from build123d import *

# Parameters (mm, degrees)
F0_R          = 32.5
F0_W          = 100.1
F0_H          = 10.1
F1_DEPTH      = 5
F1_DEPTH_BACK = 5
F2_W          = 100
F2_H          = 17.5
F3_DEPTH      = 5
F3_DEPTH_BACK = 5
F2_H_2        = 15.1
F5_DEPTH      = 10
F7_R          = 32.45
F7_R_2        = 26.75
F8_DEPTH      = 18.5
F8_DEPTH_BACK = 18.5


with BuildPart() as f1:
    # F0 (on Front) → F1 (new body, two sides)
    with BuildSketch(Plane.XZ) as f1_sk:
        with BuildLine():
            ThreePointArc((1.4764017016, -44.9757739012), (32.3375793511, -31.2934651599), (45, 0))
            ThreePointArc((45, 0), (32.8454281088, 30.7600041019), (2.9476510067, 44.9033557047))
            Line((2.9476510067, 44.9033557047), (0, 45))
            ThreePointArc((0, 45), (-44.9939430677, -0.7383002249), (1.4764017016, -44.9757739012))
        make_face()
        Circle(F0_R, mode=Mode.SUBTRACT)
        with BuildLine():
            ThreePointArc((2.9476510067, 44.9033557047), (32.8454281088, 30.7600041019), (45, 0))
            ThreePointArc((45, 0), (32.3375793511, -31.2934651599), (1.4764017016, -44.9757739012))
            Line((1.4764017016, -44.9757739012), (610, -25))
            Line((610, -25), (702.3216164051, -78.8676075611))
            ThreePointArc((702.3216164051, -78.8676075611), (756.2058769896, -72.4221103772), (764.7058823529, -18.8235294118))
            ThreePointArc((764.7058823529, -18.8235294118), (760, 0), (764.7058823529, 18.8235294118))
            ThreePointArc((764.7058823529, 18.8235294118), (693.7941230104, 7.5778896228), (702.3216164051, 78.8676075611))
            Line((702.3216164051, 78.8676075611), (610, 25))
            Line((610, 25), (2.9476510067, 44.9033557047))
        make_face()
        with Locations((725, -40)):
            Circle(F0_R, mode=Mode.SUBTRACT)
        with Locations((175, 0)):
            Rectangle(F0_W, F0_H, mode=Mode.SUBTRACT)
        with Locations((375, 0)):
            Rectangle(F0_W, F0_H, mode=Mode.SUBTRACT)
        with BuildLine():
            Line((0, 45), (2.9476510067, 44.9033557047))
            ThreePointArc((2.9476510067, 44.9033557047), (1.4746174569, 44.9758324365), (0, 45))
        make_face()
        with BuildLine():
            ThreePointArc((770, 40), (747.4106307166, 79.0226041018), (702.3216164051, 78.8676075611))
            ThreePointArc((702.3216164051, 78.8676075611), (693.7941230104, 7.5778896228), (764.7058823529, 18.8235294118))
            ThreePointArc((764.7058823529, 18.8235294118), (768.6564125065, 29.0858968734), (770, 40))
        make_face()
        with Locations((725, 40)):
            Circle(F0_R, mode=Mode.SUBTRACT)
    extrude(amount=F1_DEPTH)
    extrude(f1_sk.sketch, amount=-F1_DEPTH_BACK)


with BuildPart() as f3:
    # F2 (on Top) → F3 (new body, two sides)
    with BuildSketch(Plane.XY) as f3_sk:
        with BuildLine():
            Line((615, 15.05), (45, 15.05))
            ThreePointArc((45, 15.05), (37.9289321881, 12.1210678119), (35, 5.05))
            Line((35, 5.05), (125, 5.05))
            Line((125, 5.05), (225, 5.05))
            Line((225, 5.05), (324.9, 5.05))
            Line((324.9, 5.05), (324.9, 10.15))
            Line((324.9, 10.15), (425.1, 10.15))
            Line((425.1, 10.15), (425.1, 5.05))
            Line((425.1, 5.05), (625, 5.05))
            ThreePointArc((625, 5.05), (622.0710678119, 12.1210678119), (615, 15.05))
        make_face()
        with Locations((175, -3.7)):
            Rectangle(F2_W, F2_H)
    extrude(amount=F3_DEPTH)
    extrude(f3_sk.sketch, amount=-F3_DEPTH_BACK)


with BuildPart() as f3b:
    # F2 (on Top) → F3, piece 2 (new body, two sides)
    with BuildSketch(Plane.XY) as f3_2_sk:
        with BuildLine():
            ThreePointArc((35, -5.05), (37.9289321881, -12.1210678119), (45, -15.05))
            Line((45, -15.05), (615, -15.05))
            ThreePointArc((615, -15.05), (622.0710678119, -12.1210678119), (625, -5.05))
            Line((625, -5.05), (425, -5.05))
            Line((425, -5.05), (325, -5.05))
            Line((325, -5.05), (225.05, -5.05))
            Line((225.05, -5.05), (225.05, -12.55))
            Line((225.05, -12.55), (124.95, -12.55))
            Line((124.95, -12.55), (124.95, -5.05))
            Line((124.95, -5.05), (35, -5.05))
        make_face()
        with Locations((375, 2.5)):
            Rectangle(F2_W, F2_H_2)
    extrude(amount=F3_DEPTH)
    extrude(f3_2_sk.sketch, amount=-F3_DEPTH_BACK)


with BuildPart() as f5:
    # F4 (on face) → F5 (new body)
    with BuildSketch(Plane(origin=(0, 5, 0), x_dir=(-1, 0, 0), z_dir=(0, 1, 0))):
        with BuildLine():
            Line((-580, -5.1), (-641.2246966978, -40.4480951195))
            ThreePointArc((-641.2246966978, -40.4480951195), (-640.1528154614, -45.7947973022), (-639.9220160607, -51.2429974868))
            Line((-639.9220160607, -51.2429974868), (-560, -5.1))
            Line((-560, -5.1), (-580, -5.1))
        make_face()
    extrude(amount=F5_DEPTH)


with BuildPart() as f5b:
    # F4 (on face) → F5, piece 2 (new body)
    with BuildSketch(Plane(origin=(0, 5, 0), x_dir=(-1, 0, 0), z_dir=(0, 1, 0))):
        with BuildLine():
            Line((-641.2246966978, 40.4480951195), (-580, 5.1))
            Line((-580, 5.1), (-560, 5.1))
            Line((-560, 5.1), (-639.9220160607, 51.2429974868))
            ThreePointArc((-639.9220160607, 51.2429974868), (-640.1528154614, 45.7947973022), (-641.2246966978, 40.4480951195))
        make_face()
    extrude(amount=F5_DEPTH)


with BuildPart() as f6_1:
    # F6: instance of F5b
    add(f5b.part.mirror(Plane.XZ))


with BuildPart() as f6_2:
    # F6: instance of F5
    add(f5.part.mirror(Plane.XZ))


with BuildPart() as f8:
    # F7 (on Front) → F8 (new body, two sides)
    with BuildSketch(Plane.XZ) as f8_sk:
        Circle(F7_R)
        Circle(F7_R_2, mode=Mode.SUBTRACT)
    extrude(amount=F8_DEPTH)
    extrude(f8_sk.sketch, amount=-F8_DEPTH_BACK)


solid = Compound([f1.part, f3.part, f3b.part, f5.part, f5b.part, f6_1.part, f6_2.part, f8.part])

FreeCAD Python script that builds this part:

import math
import FreeCAD as App
import Part
import Sketcher

V = App.Vector
Q = App.Units.Quantity

doc = App.newDocument("Part")
body = doc.addObject("PartDesign::Body", "Body")

# Sketch on XZ plane
sketch1 = body.newObject("Sketcher::SketchObject", "Sketch")
sketch1.AttachmentSupport = (doc.getObject("XZ_Plane"), [""])
sketch1.MapMode = "FlatFace"
sketch1.addGeometry(Part.ArcOfCircle(Part.Circle(V(0, 0, 0), V(0, 0, 1), 45), math.radians(90), math.radians(272)), False)
sketch1.addGeometry(Part.LineSegment(V(1.5, -45, 0), V(610, -25, 0)), False)
sketch1.addGeometry(Part.LineSegment(V(610, -25, 0), V(702.3, -78.9, 0)), False)
sketch1.addGeometry(Part.ArcOfCircle(Part.Circle(V(725, -40, 0), V(0, 0, 1), 45), math.radians(-120), math.radians(28)), False)
sketch1.addGeometry(Part.ArcOfCircle(Part.Circle(V(800, 0, 0), V(0, 0, 1), 40), math.radians(152), math.radians(208)), False)
sketch1.addGeometry(Part.ArcOfCircle(Part.Circle(V(725, 40, 0), V(0, 0, 1), 45), math.radians(-28), math.radians(120)), False)
sketch1.addGeometry(Part.LineSegment(V(702.3, 78.9, 0), V(610, 25, 0)), False)
sketch1.addGeometry(Part.LineSegment(V(610, 25, 0), V(2.9, 44.9, 0)), False)
sketch1.addGeometry(Part.ArcOfCircle(Part.Circle(V(0, 0, 0), V(0, 0, 1), 45), math.radians(86.24), math.radians(90)), False)
sketch1.addGeometry(Part.Circle(V(725, -40, 0), V(0, 0, 1), 32.5), False)
sketch1.addGeometry(Part.Circle(V(0, 0, 0), V(0, 0, 1), 32.5), False)
sketch1.addGeometry(Part.LineSegment(V(225.1, -5, 0), V(125, -5, 0)), False)
sketch1.addGeometry(Part.LineSegment(V(125, -5, 0), V(125, 5, 0)), False)
sketch1.addGeometry(Part.LineSegment(V(125, 5, 0), V(225.1, 5, 0)), False)
sketch1.addGeometry(Part.LineSegment(V(225.1, 5, 0), V(225.1, -5, 0)), False)
sketch1.addGeometry(Part.LineSegment(V(425.1, -5, 0), V(324.9, -5, 0)), False)
sketch1.addGeometry(Part.LineSegment(V(324.9, -5, 0), V(324.9, 5, 0)), False)
sketch1.addGeometry(Part.LineSegment(V(324.9, 5, 0), V(425.1, 5, 0)), False)
sketch1.addGeometry(Part.LineSegment(V(425.1, 5, 0), V(425.1, -5, 0)), False)
sketch1.addGeometry(Part.Circle(V(725, 40, 0), V(0, 0, 1), 32.5), False)
sketch1.addConstraint(Sketcher.Constraint("Tangent", 0, 2, 1, 1))
sketch1.addConstraint(Sketcher.Constraint("Coincident", 1, 2, 2, 1))
sketch1.addConstraint(Sketcher.Constraint("Tangent", 2, 2, 3, 1))
sketch1.addConstraint(Sketcher.Constraint("Tangent", 3, 2, 4, 2))
sketch1.addConstraint(Sketcher.Constraint("Tangent", 4, 1, 5, 1))
sketch1.addConstraint(Sketcher.Constraint("Tangent", 5, 2, 6, 1))
sketch1.addConstraint(Sketcher.Constraint("Coincident", 6, 2, 7, 1))
sketch1.addConstraint(Sketcher.Constraint("Coincident", 7, 2, 8, 1))
sketch1.addConstraint(Sketcher.Constraint("Tangent", 8, 2, 0, 1))
sketch1.addConstraint(Sketcher.Constraint("Coincident", 11, 2, 12, 1))
sketch1.addConstraint(Sketcher.Constraint("Coincident", 12, 2, 13, 1))
sketch1.addConstraint(Sketcher.Constraint("Coincident", 13, 2, 14, 1))
sketch1.addConstraint(Sketcher.Constraint("Coincident", 14, 2, 11, 1))
sketch1.addConstraint(Sketcher.Constraint("Coincident", 15, 2, 16, 1))
sketch1.addConstraint(Sketcher.Constraint("Coincident", 16, 2, 17, 1))
sketch1.addConstraint(Sketcher.Constraint("Coincident", 17, 2, 18, 1))
sketch1.addConstraint(Sketcher.Constraint("Coincident", 18, 2, 15, 1))
sketch1.addConstraint(Sketcher.Constraint("Horizontal", 11))
sketch1.addConstraint(Sketcher.Constraint("Vertical", 12))
sketch1.addConstraint(Sketcher.Constraint("Horizontal", 13))
sketch1.addConstraint(Sketcher.Constraint("Vertical", 14))
sketch1.addConstraint(Sketcher.Constraint("Horizontal", 15))
sketch1.addConstraint(Sketcher.Constraint("Vertical", 16))
sketch1.addConstraint(Sketcher.Constraint("Horizontal", 17))
sketch1.addConstraint(Sketcher.Constraint("Vertical", 18))
sketch1.addConstraint(Sketcher.Constraint("Coincident", 0, 3, -1, 1))
sketch1.addConstraint(Sketcher.Constraint("Coincident", 10, 3, -1, 1))
sketch1.addConstraint(Sketcher.Constraint("Coincident", 9, 3, 3, 3))
sketch1.addConstraint(Sketcher.Constraint("Coincident", 19, 3, 5, 3))
sketch1.addConstraint(Sketcher.Constraint("Equal", 0, 3))
sketch1.addConstraint(Sketcher.Constraint("Equal", 3, 5))
sketch1.addConstraint(Sketcher.Constraint("Equal", 5, 8))
sketch1.addConstraint(Sketcher.Constraint("Equal", 9, 10))
sketch1.addConstraint(Sketcher.Constraint("Equal", 10, 19))
sketch1.addConstraint(Sketcher.Constraint("Symmetric", 3, 3, 5, 3, -1))
sketch1.addConstraint(Sketcher.Constraint("Symmetric", 1, 2, 6, 2, -1))
sketch1.addConstraint(Sketcher.Constraint("PointOnObject", 8, 2, -2))
sketch1.addConstraint(Sketcher.Constraint("Horizontal", 14, 2, 15, 2))
sketch1.addConstraint(Sketcher.Constraint("Horizontal", 13, 2, 16, 2))
sketch1.addConstraint(Sketcher.Constraint("Equal", 13, 15))
sketch1.addConstraint(Sketcher.Constraint("Diameter", 9, 65.0))
sketch1.addConstraint(Sketcher.Constraint("Radius", 0, 45.0))
sketch1.addConstraint(Sketcher.Constraint("Radius", 4, 40.0))
sketch1.addConstraint(Sketcher.Constraint("DistanceX", 11, 2, 11, 1, 100.1))
sketch1.addConstraint(Sketcher.Constraint("DistanceY", 12, 1, 12, 2, 10.1))
sketch1.addConstraint(Sketcher.Constraint("DistanceX", -1, 1, 3, 3, 725.0))
sketch1.addConstraint(Sketcher.Constraint("DistanceY", 3, 3, -1, 1, 40.0))
sketch1.addConstraint(Sketcher.Constraint("DistanceX", -1, 1, 1, 2, 610.0))
sketch1.addConstraint(Sketcher.Constraint("DistanceY", 1, 2, -1, 1, 25.0))
sketch1.addConstraint(Sketcher.Constraint("DistanceX", 11, 2, 15, 2, 200.0))
sketch1.addConstraint(Sketcher.Constraint("DistanceX", -1, 1, 11, 2, 124.95))
sketch1.addConstraint(Sketcher.Constraint("DistanceY", 11, 2, -1, 1, 5.05))
sketch1.addConstraint(Sketcher.Constraint("DistanceX", -1, 1, 7, 2, 2.947651))
pad1 = body.newObject("PartDesign::Pad", "Pad")
pad1.Profile = sketch1
pad1.Type = "TwoLengths"
pad1.Length = 5
pad1.Length2 = 5
body2 = doc.addObject("PartDesign::Body", "Body001")

# Sketch on XY plane
sketch2 = body2.newObject("Sketcher::SketchObject", "Sketch001")
sketch2.AttachmentSupport = (doc.getObject("XY_Plane001"), [""])
sketch2.MapMode = "FlatFace"
sketch2.addGeometry(Part.LineSegment(V(615, 15, 0), V(45, 15, 0)), False)
sketch2.addGeometry(Part.ArcOfCircle(Part.Circle(V(45, 5, 0), V(0, 0, 1), 10), math.radians(90), math.radians(180)), False)
sketch2.addGeometry(Part.LineSegment(V(35, 5, 0), V(125, 5, 0)), False)
sketch2.addGeometry(Part.LineSegment(V(125, 5, 0), V(125, -12, 0)), False)
sketch2.addGeometry(Part.LineSegment(V(125, -12, 0), V(225, -12, 0)), False)
sketch2.addGeometry(Part.LineSegment(V(225, -12, 0), V(225, 5, 0)), False)
sketch2.addGeometry(Part.LineSegment(V(225, 5, 0), V(325, 5, 0)), False)
sketch2.addGeometry(Part.LineSegment(V(325, 5, 0), V(325, 10, 0)), False)
sketch2.addGeometry(Part.LineSegment(V(325, 10, 0), V(425, 10, 0)), False)
sketch2.addGeometry(Part.LineSegment(V(425, 10, 0), V(425, 5, 0)), False)
sketch2.addGeometry(Part.LineSegment(V(425, 5, 0), V(625, 5, 0)), False)
sketch2.addGeometry(Part.ArcOfCircle(Part.Circle(V(615, 5, 0), V(0, 0, 1), 10), math.radians(0), math.radians(90)), False)
sketch2.addConstraint(Sketcher.Constraint("Tangent", 0, 2, 1, 1))
sketch2.addConstraint(Sketcher.Constraint("Coincident", 1, 2, 2, 1))
sketch2.addConstraint(Sketcher.Constraint("Coincident", 2, 2, 3, 1))
sketch2.addConstraint(Sketcher.Constraint("Coincident", 3, 2, 4, 1))
sketch2.addConstraint(Sketcher.Constraint("Coincident", 4, 2, 5, 1))
sketch2.addConstraint(Sketcher.Constraint("Coincident", 5, 2, 6, 1))
sketch2.addConstraint(Sketcher.Constraint("Coincident", 6, 2, 7, 1))
sketch2.addConstraint(Sketcher.Constraint("Coincident", 7, 2, 8, 1))
sketch2.addConstraint(Sketcher.Constraint("Coincident", 8, 2, 9, 1))
sketch2.addConstraint(Sketcher.Constraint("Coincident", 9, 2, 10, 1))
sketch2.addConstraint(Sketcher.Constraint("Coincident", 10, 2, 11, 1))
sketch2.addConstraint(Sketcher.Constraint("Tangent", 11, 2, 0, 1))
sketch2.addConstraint(Sketcher.Constraint("Horizontal", 0))
sketch2.addConstraint(Sketcher.Constraint("Horizontal", 2))
sketch2.addConstraint(Sketcher.Constraint("Vertical", 3))
sketch2.addConstraint(Sketcher.Constraint("Horizontal", 4))
sketch2.addConstraint(Sketcher.Constraint("Vertical", 5))
sketch2.addConstraint(Sketcher.Constraint("Horizontal", 6))
sketch2.addConstraint(Sketcher.Constraint("Vertical", 7))
sketch2.addConstraint(Sketcher.Constraint("Horizontal", 8))
sketch2.addConstraint(Sketcher.Constraint("Vertical", 9))
sketch2.addConstraint(Sketcher.Constraint("Horizontal", 10))
sketch2.addConstraint(Sketcher.Constraint("Equal", 1, 11))
sketch2.addConstraint(Sketcher.Constraint("Horizontal", 11, 3, 1, 2))
sketch2.addConstraint(Sketcher.Constraint("Horizontal", 2, 2, 5, 2))
sketch2.addConstraint(Sketcher.Constraint("Horizontal", 6, 2, 9, 2))
sketch2.addConstraint(Sketcher.Constraint("Radius", 1, 10.0))
sketch2.addConstraint(Sketcher.Constraint("DistanceX", 0, 2, 0, 1, 570.0))
sketch2.addConstraint(Sketcher.Constraint("DistanceX", 2, 1, 2, 2, 90.0))
sketch2.addConstraint(Sketcher.Constraint("DistanceX", 4, 1, 4, 2, 100.0))
sketch2.addConstraint(Sketcher.Constraint("DistanceX", 6, 1, 6, 2, 99.9))
sketch2.addConstraint(Sketcher.Constraint("DistanceX", 8, 1, 8, 2, 100.2))
sketch2.addConstraint(Sketcher.Constraint("DistanceY", 3, 2, 3, 1, 17.5))
sketch2.addConstraint(Sketcher.Constraint("DistanceY", 7, 1, 7, 2, 5.1))
sketch2.addConstraint(Sketcher.Constraint("DistanceX", -1, 1, 1, 3, 45.0))
sketch2.addConstraint(Sketcher.Constraint("DistanceY", -1, 1, 1, 3, 5.05))
pad2 = body2.newObject("PartDesign::Pad", "Pad001")
pad2.Profile = sketch2
pad2.Type = "TwoLengths"
pad2.Length = 5
pad2.Length2 = 5
body3 = doc.addObject("PartDesign::Body", "Body002")

# Sketch on XY plane
sketch3 = body3.newObject("Sketcher::SketchObject", "Sketch002")
sketch3.AttachmentSupport = (doc.getObject("XY_Plane002"), [""])
sketch3.MapMode = "FlatFace"
sketch3.addGeometry(Part.ArcOfCircle(Part.Circle(V(45, -5, 0), V(0, 0, 1), 10), math.radians(180), math.radians(270)), False)
sketch3.addGeometry(Part.LineSegment(V(45, -15, 0), V(615, -15, 0)), False)
sketch3.addGeometry(Part.ArcOfCircle(Part.Circle(V(615, -5, 0), V(0, 0, 1), 10), math.radians(-90), math.radians(0)), False)
sketch3.addGeometry(Part.LineSegment(V(625, -5, 0), V(425, -5, 0)), False)
sketch3.addGeometry(Part.LineSegment(V(425, -5, 0), V(425, 10, 0)), False)
sketch3.addGeometry(Part.LineSegment(V(425, 10, 0), V(325, 10, 0)), False)
sketch3.addGeometry(Part.LineSegment(V(325, 10, 0), V(325, -5, 0)), False)
sketch3.addGeometry(Part.LineSegment(V(325, -5, 0), V(225, -5, 0)), False)
sketch3.addGeometry(Part.LineSegment(V(225, -5, 0), V(225, -13, 0)), False)
sketch3.addGeometry(Part.LineSegment(V(225, -13, 0), V(125, -13, 0)), False)
sketch3.addGeometry(Part.LineSegment(V(125, -13, 0), V(125, -5, 0)), False)
sketch3.addGeometry(Part.LineSegment(V(125, -5, 0), V(35, -5, 0)), False)
sketch3.addConstraint(Sketcher.Constraint("Tangent", 0, 2, 1, 1))
sketch3.addConstraint(Sketcher.Constraint("Tangent", 1, 2, 2, 1))
sketch3.addConstraint(Sketcher.Constraint("Coincident", 2, 2, 3, 1))
sketch3.addConstraint(Sketcher.Constraint("Coincident", 3, 2, 4, 1))
sketch3.addConstraint(Sketcher.Constraint("Coincident", 4, 2, 5, 1))
sketch3.addConstraint(Sketcher.Constraint("Coincident", 5, 2, 6, 1))
sketch3.addConstraint(Sketcher.Constraint("Coincident", 6, 2, 7, 1))
sketch3.addConstraint(Sketcher.Constraint("Coincident", 7, 2, 8, 1))
sketch3.addConstraint(Sketcher.Constraint("Coincident", 8, 2, 9, 1))
sketch3.addConstraint(Sketcher.Constraint("Coincident", 9, 2, 10, 1))
sketch3.addConstraint(Sketcher.Constraint("Coincident", 10, 2, 11, 1))
sketch3.addConstraint(Sketcher.Constraint("Coincident", 11, 2, 0, 1))
sketch3.addConstraint(Sketcher.Constraint("Horizontal", 1))
sketch3.addConstraint(Sketcher.Constraint("Horizontal", 3))
sketch3.addConstraint(Sketcher.Constraint("Vertical", 4))
sketch3.addConstraint(Sketcher.Constraint("Horizontal", 5))
sketch3.addConstraint(Sketcher.Constraint("Vertical", 6))
sketch3.addConstraint(Sketcher.Constraint("Horizontal", 7))
sketch3.addConstraint(Sketcher.Constraint("Vertical", 8))
sketch3.addConstraint(Sketcher.Constraint("Horizontal", 9))
sketch3.addConstraint(Sketcher.Constraint("Vertical", 10))
sketch3.addConstraint(Sketcher.Constraint("Horizontal", 11))
sketch3.addConstraint(Sketcher.Constraint("Equal", 0, 2))
sketch3.addConstraint(Sketcher.Constraint("Horizontal", 0, 3, 2, 2))
sketch3.addConstraint(Sketcher.Constraint("Horizontal", 3, 2, 6, 2))
sketch3.addConstraint(Sketcher.Constraint("Horizontal", 7, 2, 10, 2))
sketch3.addConstraint(Sketcher.Constraint("Radius", 0, 10.0))
sketch3.addConstraint(Sketcher.Constraint("DistanceX", 1, 1, 1, 2, 570.0))
sketch3.addConstraint(Sketcher.Constraint("DistanceX", 3, 2, 3, 1, 200.0))
sketch3.addConstraint(Sketcher.Constraint("DistanceX", 5, 2, 5, 1, 100.0))
sketch3.addConstraint(Sketcher.Constraint("DistanceX", 9, 2, 9, 1, 100.1))
sketch3.addConstraint(Sketcher.Constraint("DistanceY", 4, 1, 4, 2, 15.1))
sketch3.addConstraint(Sketcher.Constraint("DistanceY", 8, 2, 8, 1, 7.5))
sketch3.addConstraint(Sketcher.Constraint("DistanceX", -1, 1, 0, 3, 45.0))
sketch3.addConstraint(Sketcher.Constraint("DistanceX", 7, 2, 7, 1, 99.95))
sketch3.addConstraint(Sketcher.Constraint("DistanceY", 0, 3, -1, 1, 5.05))
pad3 = body3.newObject("PartDesign::Pad", "Pad002")
pad3.Profile = sketch3
pad3.Type = "TwoLengths"
pad3.Length = 5
pad3.Length2 = 5
body4 = doc.addObject("PartDesign::Body", "Body003")

# Sketch on XZ plane
sketch4 = body4.newObject("Sketcher::SketchObject", "Sketch003")
sketch4.AttachmentSupport = (doc.getObject("XZ_Plane003"), [""])
sketch4.MapMode = "FlatFace"
sketch4.AttachmentOffset = App.Placement(V(0, 0, -5), App.Rotation())
sketch4.addGeometry(Part.LineSegment(V(580, -5, 0), V(641, -40, 0)), False)
sketch4.addGeometry(Part.ArcOfCircle(Part.Circle(V(675, -50, 0), V(0, 0, 1), 35), math.radians(164.21), math.radians(182.03)), False)
sketch4.addGeometry(Part.LineSegment(V(640, -51, 0), V(560, -5, 0)), False)
sketch4.addGeometry(Part.LineSegment(V(560, -5, 0), V(580, -5, 0)), False)
sketch4.addConstraint(Sketcher.Constraint("Coincident", 0, 2, 1, 1))
sketch4.addConstraint(Sketcher.Constraint("Coincident", 1, 2, 2, 1))
sketch4.addConstraint(Sketcher.Constraint("Coincident", 2, 2, 3, 1))
sketch4.addConstraint(Sketcher.Constraint("Coincident", 3, 2, 0, 1))
sketch4.addConstraint(Sketcher.Constraint("Horizontal", 3))
sketch4.addConstraint(Sketcher.Constraint("Parallel", 0, 2))
sketch4.addConstraint(Sketcher.Constraint("Radius", 1, 35.1))
sketch4.addConstraint(Sketcher.Constraint("DistanceX", 3, 1, 3, 2, 20.0))
sketch4.addConstraint(Sketcher.Constraint("Angle", 0, Q("-30 deg")))
sketch4.addConstraint(Sketcher.Constraint("DistanceX", -1, 1, 1, 3, 675.0))
sketch4.addConstraint(Sketcher.Constraint("DistanceY", 1, 3, -1, 1, 50.0))
sketch4.addConstraint(Sketcher.Constraint("DistanceX", -1, 1, 2, 2, 560.0))
sketch4.addConstraint(Sketcher.Constraint("DistanceY", 2, 2, -1, 1, 5.1))
pad4 = body4.newObject("PartDesign::Pad", "Pad003")
pad4.Profile = sketch4
pad4.Length = 10
pad4.Reversed = True
body5 = doc.addObject("PartDesign::Body", "Body004")

# Sketch on XZ plane
sketch5 = body5.newObject("Sketcher::SketchObject", "Sketch004")
sketch5.AttachmentSupport = (doc.getObject("XZ_Plane004"), [""])
sketch5.MapMode = "FlatFace"
sketch5.AttachmentOffset = App.Placement(V(0, 0, -5), App.Rotation())
sketch5.addGeometry(Part.LineSegment(V(641, 40, 0), V(580, 5, 0)), False)
sketch5.addGeometry(Part.LineSegment(V(580, 5, 0), V(560, 5, 0)), False)
sketch5.addGeometry(Part.LineSegment(V(560, 5, 0), V(640, 51, 0)), False)
sketch5.addGeometry(Part.ArcOfCircle(Part.Circle(V(675, 50, 0), V(0, 0, 1), 35), math.radians(177.97), math.radians(195.79)), False)
sketch5.addConstraint(Sketcher.Constraint("Coincident", 0, 2, 1, 1))
sketch5.addConstraint(Sketcher.Constraint("Coincident", 1, 2, 2, 1))
sketch5.addConstraint(Sketcher.Constraint("Coincident", 2, 2, 3, 1))
sketch5.addConstraint(Sketcher.Constraint("Coincident", 3, 2, 0, 1))
sketch5.addConstraint(Sketcher.Constraint("Horizontal", 1))
sketch5.addConstraint(Sketcher.Constraint("Parallel", 0, 2))
sketch5.addConstraint(Sketcher.Constraint("Radius", 3, 35.1))
sketch5.addConstraint(Sketcher.Constraint("DistanceX", 1, 2, 1, 1, 20.0))
sketch5.addConstraint(Sketcher.Constraint("Angle", 0, Q("-150 deg")))
sketch5.addConstraint(Sketcher.Constraint("DistanceX", -1, 1, 3, 3, 675.0))
sketch5.addConstraint(Sketcher.Constraint("DistanceY", -1, 1, 3, 3, 50.0))
sketch5.addConstraint(Sketcher.Constraint("DistanceX", -1, 1, 0, 2, 580.0))
sketch5.addConstraint(Sketcher.Constraint("DistanceY", -1, 1, 0, 2, 5.1))
pad5 = body5.newObject("PartDesign::Pad", "Pad004")
pad5.Profile = sketch5
pad5.Length = 10
pad5.Reversed = True
body6 = doc.addObject("PartDesign::Body", "Body005")
doc.recompute()

mirroring = doc.addObject("Part::Mirroring", "Mirroring")
mirroring.Source = body5
mirroring.Base = V(0, 0, 0)
mirroring.Normal = V(0, -1, 0)
body6.BaseFeature = mirroring
doc.recompute()
body7 = doc.addObject("PartDesign::Body", "Body006")
doc.recompute()

mirroring2 = doc.addObject("Part::Mirroring", "Mirroring001")
mirroring2.Source = body4
mirroring2.Base = V(0, 0, 0)
mirroring2.Normal = V(0, -1, 0)
body7.BaseFeature = mirroring2
doc.recompute()
body8 = doc.addObject("PartDesign::Body", "Body007")

# Sketch on XZ plane
sketch6 = body8.newObject("Sketcher::SketchObject", "Sketch005")
sketch6.AttachmentSupport = (doc.getObject("XZ_Plane007"), [""])
sketch6.MapMode = "FlatFace"
sketch6.addGeometry(Part.Circle(V(0, 0, 0), V(0, 0, 1), 32), False)
sketch6.addGeometry(Part.Circle(V(0, 0, 0), V(0, 0, 1), 27), False)
sketch6.addConstraint(Sketcher.Constraint("Coincident", 0, 3, -1, 1))
sketch6.addConstraint(Sketcher.Constraint("Coincident", 1, 3, -1, 1))
sketch6.addConstraint(Sketcher.Constraint("Diameter", 0, 64.9))
sketch6.addConstraint(Sketcher.Constraint("Diameter", 1, 53.5))
pad6 = body8.newObject("PartDesign::Pad", "Pad005")
pad6.Profile = sketch6
pad6.Type = "TwoLengths"
pad6.Length = 18.5
pad6.Length2 = 18.5
mirroring.Visibility = False
mirroring2.Visibility = False

doc.recompute()
